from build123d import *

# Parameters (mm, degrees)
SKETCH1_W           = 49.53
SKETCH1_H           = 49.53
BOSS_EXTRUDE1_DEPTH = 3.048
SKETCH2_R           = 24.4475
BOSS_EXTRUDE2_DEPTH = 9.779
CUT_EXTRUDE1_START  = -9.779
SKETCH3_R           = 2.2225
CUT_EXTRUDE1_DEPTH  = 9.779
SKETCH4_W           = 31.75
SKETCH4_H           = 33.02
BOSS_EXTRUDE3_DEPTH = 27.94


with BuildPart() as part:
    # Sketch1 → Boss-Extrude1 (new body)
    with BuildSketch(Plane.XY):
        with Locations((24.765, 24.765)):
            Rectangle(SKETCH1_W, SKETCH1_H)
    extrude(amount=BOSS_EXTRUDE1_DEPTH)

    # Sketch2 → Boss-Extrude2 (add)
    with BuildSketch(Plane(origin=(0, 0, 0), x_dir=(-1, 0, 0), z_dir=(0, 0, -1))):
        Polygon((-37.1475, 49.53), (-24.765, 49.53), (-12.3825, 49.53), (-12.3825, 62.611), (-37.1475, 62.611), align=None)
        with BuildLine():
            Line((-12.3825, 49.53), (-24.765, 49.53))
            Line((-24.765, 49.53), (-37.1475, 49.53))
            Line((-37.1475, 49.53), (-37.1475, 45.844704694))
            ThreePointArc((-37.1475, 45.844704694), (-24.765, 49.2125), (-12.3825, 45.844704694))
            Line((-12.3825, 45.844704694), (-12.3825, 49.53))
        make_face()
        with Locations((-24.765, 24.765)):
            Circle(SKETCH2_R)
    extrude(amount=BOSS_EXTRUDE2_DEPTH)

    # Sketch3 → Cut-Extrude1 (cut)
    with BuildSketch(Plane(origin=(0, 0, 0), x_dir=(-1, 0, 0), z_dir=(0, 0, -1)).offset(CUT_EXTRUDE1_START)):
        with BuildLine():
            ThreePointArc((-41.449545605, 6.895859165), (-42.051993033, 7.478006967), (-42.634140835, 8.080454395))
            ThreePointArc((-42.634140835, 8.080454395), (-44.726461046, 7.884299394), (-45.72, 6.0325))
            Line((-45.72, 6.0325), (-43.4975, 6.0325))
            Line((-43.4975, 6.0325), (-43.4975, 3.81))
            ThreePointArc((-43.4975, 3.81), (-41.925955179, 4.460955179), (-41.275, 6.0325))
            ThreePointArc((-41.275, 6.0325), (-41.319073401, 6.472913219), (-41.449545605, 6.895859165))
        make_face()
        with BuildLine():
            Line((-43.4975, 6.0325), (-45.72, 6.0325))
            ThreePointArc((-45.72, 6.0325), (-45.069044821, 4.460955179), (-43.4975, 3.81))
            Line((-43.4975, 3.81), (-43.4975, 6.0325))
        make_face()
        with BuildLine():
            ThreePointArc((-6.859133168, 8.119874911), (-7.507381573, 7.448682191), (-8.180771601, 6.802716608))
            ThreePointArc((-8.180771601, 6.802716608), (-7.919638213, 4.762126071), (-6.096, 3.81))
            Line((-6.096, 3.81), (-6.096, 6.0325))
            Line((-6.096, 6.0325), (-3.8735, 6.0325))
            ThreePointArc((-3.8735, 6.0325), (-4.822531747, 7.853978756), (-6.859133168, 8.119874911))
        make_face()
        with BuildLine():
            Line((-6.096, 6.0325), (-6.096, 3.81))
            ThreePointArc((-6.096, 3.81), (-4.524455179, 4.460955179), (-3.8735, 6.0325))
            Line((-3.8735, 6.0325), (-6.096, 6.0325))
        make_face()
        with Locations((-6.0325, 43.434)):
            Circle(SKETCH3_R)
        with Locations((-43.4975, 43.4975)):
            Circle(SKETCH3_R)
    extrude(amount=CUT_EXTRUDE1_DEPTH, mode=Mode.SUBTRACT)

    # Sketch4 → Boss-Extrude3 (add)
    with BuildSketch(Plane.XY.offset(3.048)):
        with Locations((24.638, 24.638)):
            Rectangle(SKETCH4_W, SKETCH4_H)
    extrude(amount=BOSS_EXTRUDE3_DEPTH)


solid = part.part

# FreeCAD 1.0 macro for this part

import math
import FreeCAD as App
import Part
import Sketcher
Q = App.Units.Quantity


def add_polygon(sketch, points):
    """Adds a closed chain of lines whose ends are joined by coincident constraints."""
    first, n = sketch.GeometryCount, len(points)
    for a, b in zip(points, points[1:] + points[:1]):
        sketch.addGeometry(Part.LineSegment(App.Vector(*a, 0), App.Vector(*b, 0)), False)
    for i in range(n):
        sketch.addConstraint(Sketcher.Constraint("Coincident", first + i, 2, first + (i + 1) % n, 1))

doc = App.newDocument("Part")
body = doc.addObject("PartDesign::Body", "Body")

# Sketch on XY plane
sketch1 = body.newObject("Sketcher::SketchObject", "Sketch")
sketch1.AttachmentSupport = (doc.getObject("XY_Plane"), [""])
sketch1.MapMode = "FlatFace"
add_polygon(sketch1, [(0, 50), (0, 0), (50, 0), (50, 50)])  # lines 0-3
sketch1.addConstraint([
    Sketcher.Constraint("Vertical", 0),
    Sketcher.Constraint("Horizontal", 1),
    Sketcher.Constraint("Vertical", 2),
    Sketcher.Constraint("Horizontal", 3),
    Sketcher.Constraint("Coincident", 0, 2, -1, 1),
    Sketcher.Constraint("Equal", 3, 0),
    Sketcher.Constraint("DistanceX", 1, 1, 1, 2, Q("1.95 in")),
])
pad1 = body.newObject("PartDesign::Pad", "Pad")
pad1.Profile = sketch1
pad1.Length = Q("0.12 in")

# Sketch on XY plane
sketch2 = body.newObject("Sketcher::SketchObject", "Sketch001")
sketch2.AttachmentSupport = (doc.getObject("XY_Plane"), [""])
sketch2.MapMode = "FlatFace"
sketch2.addGeometry([
    Part.LineSegment(App.Vector(12, 63, 0), App.Vector(37, 63, 0)),
    Part.LineSegment(App.Vector(37, 63, 0), App.Vector(37, 46, 0)),
    Part.ArcOfCircle(Part.Circle(App.Vector(25, 25, 0), App.Vector(0, 0, 1), 24), math.radians(120), math.radians(420)),
    Part.LineSegment(App.Vector(12, 46, 0), App.Vector(12, 63, 0)),
], False)
sketch2.addConstraint([
    Sketcher.Constraint("Coincident", 0, 2, 1, 1),
    Sketcher.Constraint("Coincident", 1, 2, 2, 2),
    Sketcher.Constraint("Coincident", 2, 1, 3, 1),
    Sketcher.Constraint("Coincident", 3, 2, 0, 1),
    Sketcher.Constraint("Horizontal", 0),
    Sketcher.Constraint("Vertical", 1),
    Sketcher.Constraint("Vertical", 3),
    Sketcher.Constraint("Horizontal", 1, 2, 2, 1),
    Sketcher.Constraint("Radius", 2, Q("0.9625 in")),
    Sketcher.Constraint("DistanceX", 0, 1, 0, 2, Q("0.975 in")),
    Sketcher.Constraint("DistanceY", 2, 3, 0, 2, Q("1.49 in")),
    Sketcher.Constraint("DistanceX", -1, 1, 2, 3, Q("0.975 in")),
    Sketcher.Constraint("DistanceY", -1, 1, 2, 3, Q("0.975 in")),
])
pad2 = body.newObject("PartDesign::Pad", "Pad001")
pad2.Profile = sketch2
pad2.Length = Q("0.385 in")
pad2.Reversed = True

# Sketch on XY plane
sketch3 = body.newObject("Sketcher::SketchObject", "Sketch002")
sketch3.AttachmentSupport = (doc.getObject("XY_Plane"), [""])
sketch3.MapMode = "FlatFace"
sketch3.AttachmentOffset = App.Placement(App.Vector(0, 0, 0.385 * 25.4), App.Rotation())
sketch3.addGeometry([
    Part.ArcOfCircle(Part.Circle(App.Vector(24.8, 24.8, 0), App.Vector(0, 0, 1), 24.4), math.radians(-46.96), math.radians(-43.04)),  # 0
    Part.ArcOfCircle(Part.Circle(App.Vector(43.5, 6, 0), App.Vector(0, 0, 1), 2.2), math.radians(0), math.radians(113)),  # 1
    Part.ArcOfCircle(Part.Circle(App.Vector(43.5, 6, 0), App.Vector(0, 0, 1), 2.2), math.radians(-90), math.radians(0)),  # 2
    Part.ArcOfCircle(Part.Circle(App.Vector(43.5, 6, 0), App.Vector(0, 0, 1), 2.2), math.radians(-180), math.radians(-90)),  # 3
    Part.ArcOfCircle(Part.Circle(App.Vector(43.5, 6, 0), App.Vector(0, 0, 1), 2.2), math.radians(157), math.radians(180)),  # 4
    Part.ArcOfCircle(Part.Circle(App.Vector(24.8, 24.8, 0), App.Vector(0, 0, 1), 24.4), math.radians(-137.09), math.radians(-132.72)),  # 5
    Part.ArcOfCircle(Part.Circle(App.Vector(6.1, 6, 0), App.Vector(0, 0, 1), 2.2), math.radians(-90), math.radians(20)),  # 6
    Part.ArcOfCircle(Part.Circle(App.Vector(6.1, 6, 0), App.Vector(0, 0, 1), 2.2), math.radians(-180), math.radians(-90)),  # 7
    Part.ArcOfCircle(Part.Circle(App.Vector(6.1, 6, 0), App.Vector(0, 0, 1), 2.2), math.radians(70), math.radians(180)),  # 8
    Part.Circle(App.Vector(6, 43.4, 0), App.Vector(0, 0, 1), 2.2),  # 9
    Part.Circle(App.Vector(43.5, 43.5, 0), App.Vector(0, 0, 1), 2.2),  # 10
], False)
sketch3.addConstraint([
    Sketcher.Constraint("Coincident", 0, 2, 1, 2),
    Sketcher.Constraint("Tangent", 1, 1, 2, 2),
    Sketcher.Constraint("Tangent", 2, 1, 3, 2),
    Sketcher.Constraint("Tangent", 3, 1, 4, 2),
    Sketcher.Constraint("Coincident", 4, 1, 0, 1),
    Sketcher.Constraint("Coincident", 5, 2, 6, 2),
    Sketcher.Constraint("Tangent", 6, 1, 7, 2),
    Sketcher.Constraint("Tangent", 7, 1, 8, 2),
    Sketcher.Constraint("Coincident", 8, 1, 5, 1),
    Sketcher.Constraint("Coincident", 3, 3, 1, 3),
    Sketcher.Constraint("Coincident", 5, 3, 0, 3),
    Sketcher.Constraint("Coincident", 8, 3, 6, 3),
    Sketcher.Constraint("Equal", 3, 4),
    Sketcher.Constraint("Equal", 0, 5),
    Sketcher.Constraint("Equal", 4, 6),
    Sketcher.Constraint("Equal", 8, 9),
    Sketcher.Constraint("Equal", 9, 10),
    Sketcher.Constraint("Horizontal", 4, 3, 6, 3),
    Sketcher.Constraint("Horizontal", 8, 3, 1, 1),
    Sketcher.Constraint("Horizontal", 1, 1, 3, 1),
    Sketcher.Constraint("Horizontal", 3, 1, 7, 1),
    Sketcher.Constraint("Vertical", 4, 3, 10, 3),
    Sketcher.Constraint("Vertical", 10, 3, 2, 1),
    Sketcher.Constraint("Vertical", 8, 3, 6, 1),
    Sketcher.Constraint("Diameter", 9, Q("0.175 in")),
    Sketcher.Constraint("DistanceX", -1, 1, 1, 1, Q("1.8 in")),
    Sketcher.Constraint("Radius", 0, Q("0.9625 in")),
    Sketcher.Constraint("DistanceX", -1, 1, 6, 3, Q("0.24 in")),
    Sketcher.Constraint("DistanceY", -1, 1, 9, 3, Q("1.71 in")),
    Sketcher.Constraint("DistanceY", -1, 1, 2, 1, Q("0.15 in")),
    Sketcher.Constraint("DistanceX", -1, 1, 0, 3, Q("0.975 in")),
    Sketcher.Constraint("DistanceY", -1, 1, 0, 3, Q("0.975 in")),
    Sketcher.Constraint("DistanceY", 2, 3, 10, 3, Q("1.475 in")),
    Sketcher.Constraint("DistanceX", -1, 1, 9, 3, Q("0.2375 in")),
])
pocket1 = body.newObject("PartDesign::Pocket", "Pocket")
pocket1.Profile = sketch3
pocket1.Length = Q("0.385 in")

# Sketch on XY plane
sketch4 = body.newObject("Sketcher::SketchObject", "Sketch003")
sketch4.AttachmentSupport = (doc.getObject("XY_Plane"), [""])
sketch4.MapMode = "FlatFace"
sketch4.AttachmentOffset = App.Placement(App.Vector(0, 0, 0.12 * 25.4), App.Rotation())
add_polygon(sketch4, [(9, 41), (9, 8), (41, 8), (41, 41)])  # lines 0-3
sketch4.addConstraint([
    Sketcher.Constraint("Vertical", 0),
    Sketcher.Constraint("Horizontal", 1),
    Sketcher.Constraint("Vertical", 2),
    Sketcher.Constraint("Horizontal", 3),
    Sketcher.Constraint("DistanceY", 0, 2, 0, 1, Q("1.3 in")),
    Sketcher.Constraint("DistanceX", 1, 1, 1, 2, Q("1.25 in")),
    Sketcher.Constraint("DistanceY", -1, 1, 0, 2, Q("0.32 in")),
    Sketcher.Constraint("DistanceX", -1, 1, 0, 2, Q("0.345 in")),
])
pad3 = body.newObject("PartDesign::Pad", "Pad002")
pad3.Profile = sketch4
pad3.Length = Q("1.1 in")

doc.recompute()
